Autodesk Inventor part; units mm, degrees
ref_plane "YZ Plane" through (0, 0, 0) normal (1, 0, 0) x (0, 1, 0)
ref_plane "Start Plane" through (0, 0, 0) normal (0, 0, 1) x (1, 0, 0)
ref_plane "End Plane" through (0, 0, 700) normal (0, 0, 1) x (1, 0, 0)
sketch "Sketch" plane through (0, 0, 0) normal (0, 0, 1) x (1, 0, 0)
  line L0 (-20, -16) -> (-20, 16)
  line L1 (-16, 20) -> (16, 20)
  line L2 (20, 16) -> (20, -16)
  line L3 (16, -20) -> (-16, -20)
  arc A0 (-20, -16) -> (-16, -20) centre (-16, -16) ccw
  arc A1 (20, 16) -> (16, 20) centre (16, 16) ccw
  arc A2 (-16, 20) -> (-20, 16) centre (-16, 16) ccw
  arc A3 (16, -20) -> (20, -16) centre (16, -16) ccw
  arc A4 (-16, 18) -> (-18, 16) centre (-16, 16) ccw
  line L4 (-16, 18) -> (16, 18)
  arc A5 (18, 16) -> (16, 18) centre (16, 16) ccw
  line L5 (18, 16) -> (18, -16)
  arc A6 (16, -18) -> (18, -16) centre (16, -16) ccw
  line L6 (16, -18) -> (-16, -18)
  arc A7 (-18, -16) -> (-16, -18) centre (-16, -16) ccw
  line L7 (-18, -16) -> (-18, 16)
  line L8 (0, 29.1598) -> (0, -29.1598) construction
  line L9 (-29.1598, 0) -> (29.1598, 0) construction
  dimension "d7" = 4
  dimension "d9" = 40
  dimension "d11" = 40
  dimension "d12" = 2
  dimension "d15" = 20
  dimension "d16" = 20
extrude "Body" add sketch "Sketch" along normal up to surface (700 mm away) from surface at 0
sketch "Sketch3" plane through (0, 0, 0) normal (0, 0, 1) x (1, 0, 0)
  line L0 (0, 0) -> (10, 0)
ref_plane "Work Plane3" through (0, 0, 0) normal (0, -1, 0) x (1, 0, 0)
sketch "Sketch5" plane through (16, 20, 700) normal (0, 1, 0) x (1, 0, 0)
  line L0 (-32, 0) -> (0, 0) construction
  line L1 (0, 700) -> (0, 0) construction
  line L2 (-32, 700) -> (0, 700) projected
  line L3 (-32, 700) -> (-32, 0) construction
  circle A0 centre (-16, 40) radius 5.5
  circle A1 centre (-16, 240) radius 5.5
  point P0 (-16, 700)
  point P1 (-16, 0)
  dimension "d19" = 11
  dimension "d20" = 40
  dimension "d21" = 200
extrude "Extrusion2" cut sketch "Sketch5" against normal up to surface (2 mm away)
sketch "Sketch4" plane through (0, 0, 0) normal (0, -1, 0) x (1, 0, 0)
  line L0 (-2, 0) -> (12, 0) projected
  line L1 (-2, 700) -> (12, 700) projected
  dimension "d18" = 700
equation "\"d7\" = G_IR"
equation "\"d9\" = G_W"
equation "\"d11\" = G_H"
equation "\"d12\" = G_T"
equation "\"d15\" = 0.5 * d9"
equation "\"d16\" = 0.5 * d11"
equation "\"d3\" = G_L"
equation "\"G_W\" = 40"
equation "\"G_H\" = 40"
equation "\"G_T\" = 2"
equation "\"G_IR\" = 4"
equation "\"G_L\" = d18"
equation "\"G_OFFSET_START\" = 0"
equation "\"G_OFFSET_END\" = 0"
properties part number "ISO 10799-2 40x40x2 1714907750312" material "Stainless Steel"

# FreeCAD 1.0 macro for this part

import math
import FreeCAD as App
import Part
import Sketcher
Q = App.Units.Quantity

doc = App.newDocument("Part")
body = doc.addObject("PartDesign::Body", "Body")

# Sketch on XY plane
sketch1 = body.newObject("Sketcher::SketchObject", "Sketch")
sketch1.AttachmentSupport = (doc.getObject("XY_Plane"), [""])
sketch1.MapMode = "FlatFace"
sketch1.addGeometry(Part.LineSegment(App.Vector(-20, 16, 0), App.Vector(-20, -16, 0)), False)
sketch1.addGeometry(Part.ArcOfCircle(Part.Circle(App.Vector(-16, -16, 0), App.Vector(0, 0, 1), 4), math.radians(180), math.radians(270)), False)
sketch1.addGeometry(Part.LineSegment(App.Vector(-16, -20, 0), App.Vector(16, -20, 0)), False)
sketch1.addGeometry(Part.ArcOfCircle(Part.Circle(App.Vector(16, -16, 0), App.Vector(0, 0, 1), 4), math.radians(-90), math.radians(0)), False)
sketch1.addGeometry(Part.LineSegment(App.Vector(20, -16, 0), App.Vector(20, 16, 0)), False)
sketch1.addGeometry(Part.ArcOfCircle(Part.Circle(App.Vector(16, 16, 0), App.Vector(0, 0, 1), 4), math.radians(0), math.radians(90)), False)
sketch1.addGeometry(Part.LineSegment(App.Vector(16, 20, 0), App.Vector(-16, 20, 0)), False)
sketch1.addGeometry(Part.ArcOfCircle(Part.Circle(App.Vector(-16, 16, 0), App.Vector(0, 0, 1), 4), math.radians(90), math.radians(180)), False)
sketch1.addGeometry(Part.ArcOfCircle(Part.Circle(App.Vector(-16, 16, 0), App.Vector(0, 0, 1), 2), math.radians(90), math.radians(180)), False)
sketch1.addGeometry(Part.LineSegment(App.Vector(-16, 18, 0), App.Vector(16, 18, 0)), False)
sketch1.addGeometry(Part.ArcOfCircle(Part.Circle(App.Vector(16, 16, 0), App.Vector(0, 0, 1), 2), math.radians(0), math.radians(90)), False)
sketch1.addGeometry(Part.LineSegment(App.Vector(18, 16, 0), App.Vector(18, -16, 0)), False)
sketch1.addGeometry(Part.ArcOfCircle(Part.Circle(App.Vector(16, -16, 0), App.Vector(0, 0, 1), 2), math.radians(-90), math.radians(0)), False)
sketch1.addGeometry(Part.LineSegment(App.Vector(16, -18, 0), App.Vector(-16, -18, 0)), False)
sketch1.addGeometry(Part.ArcOfCircle(Part.Circle(App.Vector(-16, -16, 0), App.Vector(0, 0, 1), 2), math.radians(180), math.radians(270)), False)
sketch1.addGeometry(Part.LineSegment(App.Vector(-18, -16, 0), App.Vector(-18, 16, 0)), False)
sketch1.addConstraint(Sketcher.Constraint("Tangent", 0, 2, 1, 1))
sketch1.addConstraint(Sketcher.Constraint("Tangent", 1, 2, 2, 1))
sketch1.addConstraint(Sketcher.Constraint("Tangent", 2, 2, 3, 1))
sketch1.addConstraint(Sketcher.Constraint("Tangent", 3, 2, 4, 1))
sketch1.addConstraint(Sketcher.Constraint("Tangent", 4, 2, 5, 1))
sketch1.addConstraint(Sketcher.Constraint("Tangent", 5, 2, 6, 1))
sketch1.addConstraint(Sketcher.Constraint("Tangent", 6, 2, 7, 1))
sketch1.addConstraint(Sketcher.Constraint("Tangent", 7, 2, 0, 1))
sketch1.addConstraint(Sketcher.Constraint("Tangent", 8, 1, 9, 1))
sketch1.addConstraint(Sketcher.Constraint("Tangent", 9, 2, 10, 2))
sketch1.addConstraint(Sketcher.Constraint("Tangent", 10, 1, 11, 1))
sketch1.addConstraint(Sketcher.Constraint("Tangent", 11, 2, 12, 2))
sketch1.addConstraint(Sketcher.Constraint("Tangent", 12, 1, 13, 1))
sketch1.addConstraint(Sketcher.Constraint("Tangent", 13, 2, 14, 2))
sketch1.addConstraint(Sketcher.Constraint("Tangent", 14, 1, 15, 1))
sketch1.addConstraint(Sketcher.Constraint("Tangent", 15, 2, 8, 2))
sketch1.addConstraint(Sketcher.Constraint("Vertical", 0))
sketch1.addConstraint(Sketcher.Constraint("Horizontal", 2))
sketch1.addConstraint(Sketcher.Constraint("Vertical", 4))
sketch1.addConstraint(Sketcher.Constraint("Horizontal", 6))
sketch1.addConstraint(Sketcher.Constraint("Horizontal", 9))
sketch1.addConstraint(Sketcher.Constraint("Vertical", 11))
sketch1.addConstraint(Sketcher.Constraint("Horizontal", 13))
sketch1.addConstraint(Sketcher.Constraint("Vertical", 15))
sketch1.addConstraint(Sketcher.Constraint("Coincident", 8, 3, 7, 3))
sketch1.addConstraint(Sketcher.Constraint("Coincident", 10, 3, 5, 3))
sketch1.addConstraint(Sketcher.Constraint("Coincident", 12, 3, 3, 3))
sketch1.addConstraint(Sketcher.Constraint("Equal", 1, 3))
sketch1.addConstraint(Sketcher.Constraint("Equal", 3, 5))
sketch1.addConstraint(Sketcher.Constraint("Equal", 5, 7))
sketch1.addConstraint(Sketcher.Constraint("Equal", 12, 14))
sketch1.addConstraint(Sketcher.Constraint("Symmetric", 1, 3, 5, 3, -1, 1))
sketch1.addConstraint(Sketcher.Constraint("Equal", 13, 0))
sketch1.addConstraint(Sketcher.Constraint("Radius", 1, Q("4 mm")))
sketch1.addConstraint(Sketcher.Constraint("Radius", 8, Q("2 mm")))
sketch1.addConstraint(Sketcher.Constraint("DistanceX", 0, 2, -1, 1, Q("20 mm")))
pad1 = body.newObject("PartDesign::Pad", "Pad")
pad1.Profile = sketch1
pad1.Length = 700

# Sketch on XZ plane
sketch2 = body.newObject("Sketcher::SketchObject", "Sketch001")
sketch2.AttachmentSupport = (doc.getObject("XZ_Plane"), [""])
sketch2.MapMode = "FlatFace"
sketch2.AttachmentOffset = App.Placement(App.Vector(0, 0, -20), App.Rotation())
sketch2.addGeometry(Part.Circle(App.Vector(0, 660, 0), App.Vector(0, 0, 1), 6), False)
sketch2.addGeometry(Part.Circle(App.Vector(0, 460, 0), App.Vector(0, 0, 1), 6), False)
sketch2.addConstraint(Sketcher.Constraint("Equal", 0, 1))
sketch2.addConstraint(Sketcher.Constraint("PointOnObject", 0, 3, -2))
sketch2.addConstraint(Sketcher.Constraint("PointOnObject", 1, 3, -2))
sketch2.addConstraint(Sketcher.Constraint("Diameter", 0, Q("11 mm")))
sketch2.addConstraint(Sketcher.Constraint("DistanceY", 1, 3, 0, 3, Q("200 mm")))
sketch2.addConstraint(Sketcher.Constraint("DistanceY", -1, 1, 0, 3, Q("660 mm")))
pocket1 = body.newObject("PartDesign::Pocket", "Pocket")
pocket1.Profile = sketch2
pocket1.Length = 2
pocket1.Reversed = True

doc.recompute()
